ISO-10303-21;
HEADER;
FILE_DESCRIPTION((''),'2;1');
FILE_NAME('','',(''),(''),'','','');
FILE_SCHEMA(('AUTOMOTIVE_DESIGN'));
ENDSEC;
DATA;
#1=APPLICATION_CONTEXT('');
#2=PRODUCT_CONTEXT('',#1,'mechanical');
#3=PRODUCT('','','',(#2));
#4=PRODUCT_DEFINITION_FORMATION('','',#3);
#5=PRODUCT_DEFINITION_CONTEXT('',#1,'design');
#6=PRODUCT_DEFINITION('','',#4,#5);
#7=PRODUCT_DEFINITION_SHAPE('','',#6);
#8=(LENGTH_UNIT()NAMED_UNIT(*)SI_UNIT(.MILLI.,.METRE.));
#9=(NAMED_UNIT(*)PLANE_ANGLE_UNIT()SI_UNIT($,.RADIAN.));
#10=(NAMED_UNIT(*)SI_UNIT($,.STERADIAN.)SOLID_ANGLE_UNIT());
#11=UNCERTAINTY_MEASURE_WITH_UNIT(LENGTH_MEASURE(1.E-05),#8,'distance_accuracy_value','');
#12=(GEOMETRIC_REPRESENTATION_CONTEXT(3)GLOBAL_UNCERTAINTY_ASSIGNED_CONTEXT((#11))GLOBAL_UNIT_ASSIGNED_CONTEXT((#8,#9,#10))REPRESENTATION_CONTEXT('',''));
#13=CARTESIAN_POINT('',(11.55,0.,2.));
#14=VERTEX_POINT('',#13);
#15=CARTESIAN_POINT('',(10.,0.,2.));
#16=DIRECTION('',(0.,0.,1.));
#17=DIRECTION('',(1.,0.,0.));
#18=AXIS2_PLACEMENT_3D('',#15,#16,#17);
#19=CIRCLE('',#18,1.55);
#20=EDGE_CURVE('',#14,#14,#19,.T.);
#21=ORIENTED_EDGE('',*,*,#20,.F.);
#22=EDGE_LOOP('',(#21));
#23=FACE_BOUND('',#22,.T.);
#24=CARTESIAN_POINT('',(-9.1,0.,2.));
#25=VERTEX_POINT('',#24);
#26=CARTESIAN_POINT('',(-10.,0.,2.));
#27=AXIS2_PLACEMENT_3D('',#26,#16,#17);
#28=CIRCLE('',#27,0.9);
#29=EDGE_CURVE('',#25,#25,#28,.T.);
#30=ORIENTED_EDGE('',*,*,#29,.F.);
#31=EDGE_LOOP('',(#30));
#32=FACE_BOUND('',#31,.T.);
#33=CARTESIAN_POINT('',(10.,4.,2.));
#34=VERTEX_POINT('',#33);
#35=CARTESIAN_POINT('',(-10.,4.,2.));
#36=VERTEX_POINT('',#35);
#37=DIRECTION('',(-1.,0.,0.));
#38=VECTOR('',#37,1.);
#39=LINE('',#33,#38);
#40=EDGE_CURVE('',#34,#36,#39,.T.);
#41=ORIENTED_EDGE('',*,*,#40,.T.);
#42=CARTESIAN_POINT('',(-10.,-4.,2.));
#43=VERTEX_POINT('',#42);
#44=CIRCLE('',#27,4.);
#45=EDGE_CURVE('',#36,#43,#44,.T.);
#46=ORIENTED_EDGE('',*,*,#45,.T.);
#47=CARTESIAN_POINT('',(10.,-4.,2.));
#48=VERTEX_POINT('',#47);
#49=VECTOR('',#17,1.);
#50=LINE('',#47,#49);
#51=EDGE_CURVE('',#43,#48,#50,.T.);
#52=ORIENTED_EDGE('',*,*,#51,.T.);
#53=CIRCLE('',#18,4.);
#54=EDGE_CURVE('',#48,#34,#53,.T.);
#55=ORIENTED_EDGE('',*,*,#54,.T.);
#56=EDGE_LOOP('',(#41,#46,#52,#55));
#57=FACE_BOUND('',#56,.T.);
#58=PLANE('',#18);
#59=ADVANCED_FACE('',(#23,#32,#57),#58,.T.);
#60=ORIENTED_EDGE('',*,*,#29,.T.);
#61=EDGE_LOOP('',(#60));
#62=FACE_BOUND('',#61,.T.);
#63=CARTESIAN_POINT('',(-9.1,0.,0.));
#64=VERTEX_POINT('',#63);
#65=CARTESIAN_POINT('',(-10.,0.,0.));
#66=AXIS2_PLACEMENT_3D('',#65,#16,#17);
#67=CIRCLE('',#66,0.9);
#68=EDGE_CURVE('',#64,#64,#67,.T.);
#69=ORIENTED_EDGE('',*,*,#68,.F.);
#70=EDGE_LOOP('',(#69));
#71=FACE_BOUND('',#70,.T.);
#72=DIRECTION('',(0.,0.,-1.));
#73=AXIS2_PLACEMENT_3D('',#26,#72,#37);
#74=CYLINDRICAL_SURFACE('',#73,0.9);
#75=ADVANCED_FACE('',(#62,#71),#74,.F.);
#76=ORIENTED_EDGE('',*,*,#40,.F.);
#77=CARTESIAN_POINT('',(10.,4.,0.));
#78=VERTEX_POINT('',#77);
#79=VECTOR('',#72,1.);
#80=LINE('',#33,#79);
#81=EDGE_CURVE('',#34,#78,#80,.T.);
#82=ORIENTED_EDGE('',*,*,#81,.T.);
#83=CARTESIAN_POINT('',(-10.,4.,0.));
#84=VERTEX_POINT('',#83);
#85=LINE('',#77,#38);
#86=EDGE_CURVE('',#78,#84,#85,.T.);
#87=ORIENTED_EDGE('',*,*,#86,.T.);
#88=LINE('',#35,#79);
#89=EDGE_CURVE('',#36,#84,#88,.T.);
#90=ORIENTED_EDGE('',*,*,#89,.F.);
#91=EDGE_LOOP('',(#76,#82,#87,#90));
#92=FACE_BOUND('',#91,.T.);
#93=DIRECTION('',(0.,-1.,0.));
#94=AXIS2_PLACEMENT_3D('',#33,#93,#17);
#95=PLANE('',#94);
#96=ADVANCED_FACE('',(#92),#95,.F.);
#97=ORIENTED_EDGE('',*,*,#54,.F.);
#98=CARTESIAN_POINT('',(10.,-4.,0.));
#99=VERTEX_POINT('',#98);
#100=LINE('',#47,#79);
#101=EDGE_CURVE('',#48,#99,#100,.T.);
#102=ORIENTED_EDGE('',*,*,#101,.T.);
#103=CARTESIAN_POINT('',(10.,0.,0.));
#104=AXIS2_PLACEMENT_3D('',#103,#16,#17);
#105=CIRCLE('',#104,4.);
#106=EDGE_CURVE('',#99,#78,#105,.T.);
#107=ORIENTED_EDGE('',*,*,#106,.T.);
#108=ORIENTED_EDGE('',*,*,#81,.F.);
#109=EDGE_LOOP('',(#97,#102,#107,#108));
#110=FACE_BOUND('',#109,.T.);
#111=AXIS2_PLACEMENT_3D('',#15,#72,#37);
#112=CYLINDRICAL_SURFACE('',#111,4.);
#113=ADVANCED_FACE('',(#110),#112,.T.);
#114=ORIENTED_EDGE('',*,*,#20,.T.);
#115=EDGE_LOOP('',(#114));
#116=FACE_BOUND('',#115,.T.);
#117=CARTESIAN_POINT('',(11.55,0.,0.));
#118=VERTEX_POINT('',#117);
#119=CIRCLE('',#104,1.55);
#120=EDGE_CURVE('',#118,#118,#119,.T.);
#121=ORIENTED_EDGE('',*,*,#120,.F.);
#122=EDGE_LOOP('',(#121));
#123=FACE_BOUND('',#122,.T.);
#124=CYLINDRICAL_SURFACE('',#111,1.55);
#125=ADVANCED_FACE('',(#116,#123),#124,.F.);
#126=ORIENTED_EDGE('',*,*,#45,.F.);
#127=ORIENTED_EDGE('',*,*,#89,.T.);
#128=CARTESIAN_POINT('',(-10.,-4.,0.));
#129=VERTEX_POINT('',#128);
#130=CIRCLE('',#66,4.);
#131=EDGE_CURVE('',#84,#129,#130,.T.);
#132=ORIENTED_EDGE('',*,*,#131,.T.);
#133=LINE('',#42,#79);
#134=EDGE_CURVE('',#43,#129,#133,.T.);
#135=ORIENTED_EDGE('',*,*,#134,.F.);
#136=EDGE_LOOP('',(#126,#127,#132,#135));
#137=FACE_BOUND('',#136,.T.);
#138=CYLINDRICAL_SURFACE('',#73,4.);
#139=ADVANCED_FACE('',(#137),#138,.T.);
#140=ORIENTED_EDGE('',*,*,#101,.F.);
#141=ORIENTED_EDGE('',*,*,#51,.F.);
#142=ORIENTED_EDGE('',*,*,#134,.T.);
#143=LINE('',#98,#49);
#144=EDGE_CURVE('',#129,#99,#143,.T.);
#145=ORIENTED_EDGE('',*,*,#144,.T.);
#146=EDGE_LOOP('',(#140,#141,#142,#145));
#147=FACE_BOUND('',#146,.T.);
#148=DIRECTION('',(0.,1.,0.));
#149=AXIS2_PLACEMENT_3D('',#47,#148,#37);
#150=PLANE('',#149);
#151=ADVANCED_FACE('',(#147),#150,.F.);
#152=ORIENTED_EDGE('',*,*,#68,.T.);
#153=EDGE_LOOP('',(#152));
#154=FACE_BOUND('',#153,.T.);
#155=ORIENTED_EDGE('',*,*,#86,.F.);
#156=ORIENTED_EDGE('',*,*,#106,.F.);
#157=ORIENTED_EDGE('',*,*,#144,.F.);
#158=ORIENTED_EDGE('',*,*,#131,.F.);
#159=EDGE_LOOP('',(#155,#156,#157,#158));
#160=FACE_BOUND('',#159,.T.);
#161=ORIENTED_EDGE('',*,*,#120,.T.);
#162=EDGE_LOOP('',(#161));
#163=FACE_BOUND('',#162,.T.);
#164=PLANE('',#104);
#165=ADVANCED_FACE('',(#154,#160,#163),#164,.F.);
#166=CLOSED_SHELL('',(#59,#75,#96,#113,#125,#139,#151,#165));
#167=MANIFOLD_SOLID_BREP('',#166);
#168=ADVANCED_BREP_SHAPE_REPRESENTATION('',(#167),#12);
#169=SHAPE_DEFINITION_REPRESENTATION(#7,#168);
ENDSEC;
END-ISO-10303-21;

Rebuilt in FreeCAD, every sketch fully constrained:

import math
import FreeCAD as App
import Part
import Sketcher

doc = App.newDocument("Part")
body = doc.addObject("PartDesign::Body", "Body")

sketch1 = body.newObject("Sketcher::SketchObject", "Sketch")
sketch1.AttachmentSupport = (doc.getObject("XY_Plane"), [""])
sketch1.MapMode = "FlatFace"
sketch1.addGeometry([
    Part.LineSegment(App.Vector(-10, -4, 0), App.Vector(10, -4, 0)),
    Part.ArcOfCircle(Part.Circle(App.Vector(10, 0, 0), App.Vector(0, 0, 1), 4), math.radians(-90), math.radians(90)),
    Part.LineSegment(App.Vector(10, 4, 0), App.Vector(-10, 4, 0)),
    Part.ArcOfCircle(Part.Circle(App.Vector(-10, 0, 0), App.Vector(0, 0, 1), 4), math.radians(90), math.radians(270)),
    Part.Circle(App.Vector(10, 0, 0), App.Vector(0, 0, 1), 1.6),
    Part.Circle(App.Vector(-10, 0, 0), App.Vector(0, 0, 1), 0.9),
], False)
sketch1.addConstraint([
    Sketcher.Constraint("Tangent", 0, 2, 1, 1),
    Sketcher.Constraint("Tangent", 1, 2, 2, 1),
    Sketcher.Constraint("Tangent", 2, 2, 3, 1),
    Sketcher.Constraint("Tangent", 3, 2, 0, 1),
    Sketcher.Constraint("Horizontal", 0),
    Sketcher.Constraint("Horizontal", 2),
    Sketcher.Constraint("Coincident", 4, 3, 1, 3),
    Sketcher.Constraint("Coincident", 5, 3, 3, 3),
    Sketcher.Constraint("Symmetric", 1, 3, 3, 3, -1, 1),
    Sketcher.Constraint("Radius", 1, 4.0),
    Sketcher.Constraint("Diameter", 4, 3.1),
    Sketcher.Constraint("Diameter", 5, 1.8),
    Sketcher.Constraint("DistanceX", 0, 1, 0, 2, 20.0),
])
pad1 = body.newObject("PartDesign::Pad", "Pad")
pad1.Profile = sketch1
pad1.Length = 2

doc.recompute()
